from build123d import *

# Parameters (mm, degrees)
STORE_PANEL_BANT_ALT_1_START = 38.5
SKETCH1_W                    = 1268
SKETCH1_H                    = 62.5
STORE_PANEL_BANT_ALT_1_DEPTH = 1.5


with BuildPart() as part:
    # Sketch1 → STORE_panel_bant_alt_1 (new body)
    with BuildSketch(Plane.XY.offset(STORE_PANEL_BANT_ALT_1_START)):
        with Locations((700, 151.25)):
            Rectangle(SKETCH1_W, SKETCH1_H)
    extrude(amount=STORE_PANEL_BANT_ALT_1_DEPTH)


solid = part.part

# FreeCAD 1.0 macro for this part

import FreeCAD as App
import Part
import Sketcher


def add_polygon(sketch, points):
    """Adds a closed chain of lines whose ends are joined by coincident constraints."""
    first, n = sketch.GeometryCount, len(points)
    for a, b in zip(points, points[1:] + points[:1]):
        sketch.addGeometry(Part.LineSegment(App.Vector(*a, 0), App.Vector(*b, 0)), False)
    for i in range(n):
        sketch.addConstraint(Sketcher.Constraint("Coincident", first + i, 2, first + (i + 1) % n, 1))

doc = App.newDocument("Part")
body = doc.addObject("PartDesign::Body", "Body")

# Sketch on XY plane
sketch1 = body.newObject("Sketcher::SketchObject", "Sketch")
sketch1.AttachmentSupport = (doc.getObject("XY_Plane"), [""])
sketch1.MapMode = "FlatFace"
sketch1.AttachmentOffset = App.Placement(App.Vector(0, 0, 38.5), App.Rotation())
add_polygon(sketch1, [(66, 182), (66, 120), (1334, 120), (1334, 182)])  # lines 0-3
sketch1.addConstraint([
    Sketcher.Constraint("Vertical", 0),
    Sketcher.Constraint("Horizontal", 1),
    Sketcher.Constraint("Vertical", 2),
    Sketcher.Constraint("Horizontal", 3),
    Sketcher.Constraint("DistanceX", 1, 1, 1, 2, 1268.0),
    Sketcher.Constraint("DistanceY", 0, 2, 0, 1, 62.5),
    Sketcher.Constraint("DistanceX", -1, 1, 0, 2, 66.0),
    Sketcher.Constraint("DistanceY", -1, 1, 0, 2, 120.0),
])
pad1 = body.newObject("PartDesign::Pad", "Pad")
pad1.Profile = sketch1
pad1.Length = 1.5

doc.recompute()
